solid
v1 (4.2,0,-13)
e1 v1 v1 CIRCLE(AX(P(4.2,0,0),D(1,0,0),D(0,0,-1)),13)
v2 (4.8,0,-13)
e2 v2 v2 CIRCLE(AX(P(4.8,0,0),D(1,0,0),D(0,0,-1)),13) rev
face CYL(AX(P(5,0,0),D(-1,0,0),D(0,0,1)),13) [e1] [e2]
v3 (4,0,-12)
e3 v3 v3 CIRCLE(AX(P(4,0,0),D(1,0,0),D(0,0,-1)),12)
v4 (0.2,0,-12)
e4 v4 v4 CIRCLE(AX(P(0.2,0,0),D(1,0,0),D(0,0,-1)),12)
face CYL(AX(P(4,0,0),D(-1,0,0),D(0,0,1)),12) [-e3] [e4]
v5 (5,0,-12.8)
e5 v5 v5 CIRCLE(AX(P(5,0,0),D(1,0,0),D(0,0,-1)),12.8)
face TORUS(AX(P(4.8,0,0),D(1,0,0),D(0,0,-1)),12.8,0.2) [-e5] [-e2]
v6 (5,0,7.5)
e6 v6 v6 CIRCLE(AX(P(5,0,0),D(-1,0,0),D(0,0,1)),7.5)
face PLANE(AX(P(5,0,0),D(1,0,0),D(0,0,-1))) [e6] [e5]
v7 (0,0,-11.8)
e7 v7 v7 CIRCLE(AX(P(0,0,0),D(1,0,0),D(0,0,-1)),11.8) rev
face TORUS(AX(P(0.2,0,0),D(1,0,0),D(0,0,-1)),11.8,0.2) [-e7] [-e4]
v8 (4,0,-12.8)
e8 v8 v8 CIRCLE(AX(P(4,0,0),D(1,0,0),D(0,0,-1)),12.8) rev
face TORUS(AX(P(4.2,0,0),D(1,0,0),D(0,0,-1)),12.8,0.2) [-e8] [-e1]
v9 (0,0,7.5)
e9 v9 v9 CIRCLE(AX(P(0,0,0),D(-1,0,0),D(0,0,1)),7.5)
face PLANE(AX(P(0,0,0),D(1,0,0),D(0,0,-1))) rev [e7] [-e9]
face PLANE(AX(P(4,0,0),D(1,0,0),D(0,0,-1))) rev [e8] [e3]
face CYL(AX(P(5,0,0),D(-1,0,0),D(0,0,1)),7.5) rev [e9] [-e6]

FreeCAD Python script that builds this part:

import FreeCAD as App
import Part
import Sketcher
from FreeCAD import Vector


def edges_at(feature, points):
    """Names of the edges that pass closest to the given points."""
    edges = feature.Shape.Edges
    near = lambda p: min(range(len(edges)), key=lambda i: edges[i].distToShape(Part.Vertex(*p))[0])
    return sorted({f"Edge{near(p) + 1}" for p in points})

doc = App.newDocument("Part")
body = doc.addObject("PartDesign::Body", "Body")

# Sketch on YZ plane
sketch1 = body.newObject("Sketcher::SketchObject", "Sketch")
sketch1.AttachmentSupport = (doc.getObject("YZ_Plane"), [""])
sketch1.MapMode = "FlatFace"
sketch1.addGeometry(Part.Circle(Vector(0, 0, 0), Vector(0, 0, 1), 12), False)
sketch1.addConstraint([
    Sketcher.Constraint("Coincident", 0, 3, -1, 1),
    Sketcher.Constraint("Diameter", 0, 24.0),
])
pad1 = body.newObject("PartDesign::Pad", "Pad")
pad1.Profile = sketch1
pad1.Length = 4

# Sketch on YZ plane
sketch2 = body.newObject("Sketcher::SketchObject", "Sketch001")
sketch2.AttachmentSupport = (doc.getObject("YZ_Plane"), [""])
sketch2.MapMode = "FlatFace"
sketch2.AttachmentOffset = App.Placement(Vector(0, 0, 4), App.Rotation())
sketch2.addGeometry(Part.Circle(Vector(0, 0, 0), Vector(0, 0, 1), 13), False)
sketch2.addConstraint([
    Sketcher.Constraint("Coincident", 0, 3, -1, 1),
    Sketcher.Constraint("Diameter", 0, 26.0),
])
pad2 = body.newObject("PartDesign::Pad", "Pad001")
pad2.Profile = sketch2
pad2.Length = 1

# Sketch on YZ plane
sketch3 = body.newObject("Sketcher::SketchObject", "Sketch002")
sketch3.AttachmentSupport = (doc.getObject("YZ_Plane"), [""])
sketch3.MapMode = "FlatFace"
sketch3.addGeometry(Part.Circle(Vector(0, 0, 0), Vector(0, 0, 1), 8), False)
sketch3.addConstraint([
    Sketcher.Constraint("Coincident", 0, 3, -1, 1),
    Sketcher.Constraint("Diameter", 0, 15.0),
])
pocket1 = body.newObject("PartDesign::Pocket", "Pocket")
pocket1.Profile = sketch3
pocket1.Type = "ThroughAll"
pocket1.Reversed = True
doc.recompute()

fillet = body.newObject("PartDesign::Fillet", "Fillet")
fillet.Base = (pocket1, edges_at(pocket1, [(0, 0, 12), (4, 0, 13), (5, 0, 13)]))
fillet.Radius = 0.2

doc.recompute()
